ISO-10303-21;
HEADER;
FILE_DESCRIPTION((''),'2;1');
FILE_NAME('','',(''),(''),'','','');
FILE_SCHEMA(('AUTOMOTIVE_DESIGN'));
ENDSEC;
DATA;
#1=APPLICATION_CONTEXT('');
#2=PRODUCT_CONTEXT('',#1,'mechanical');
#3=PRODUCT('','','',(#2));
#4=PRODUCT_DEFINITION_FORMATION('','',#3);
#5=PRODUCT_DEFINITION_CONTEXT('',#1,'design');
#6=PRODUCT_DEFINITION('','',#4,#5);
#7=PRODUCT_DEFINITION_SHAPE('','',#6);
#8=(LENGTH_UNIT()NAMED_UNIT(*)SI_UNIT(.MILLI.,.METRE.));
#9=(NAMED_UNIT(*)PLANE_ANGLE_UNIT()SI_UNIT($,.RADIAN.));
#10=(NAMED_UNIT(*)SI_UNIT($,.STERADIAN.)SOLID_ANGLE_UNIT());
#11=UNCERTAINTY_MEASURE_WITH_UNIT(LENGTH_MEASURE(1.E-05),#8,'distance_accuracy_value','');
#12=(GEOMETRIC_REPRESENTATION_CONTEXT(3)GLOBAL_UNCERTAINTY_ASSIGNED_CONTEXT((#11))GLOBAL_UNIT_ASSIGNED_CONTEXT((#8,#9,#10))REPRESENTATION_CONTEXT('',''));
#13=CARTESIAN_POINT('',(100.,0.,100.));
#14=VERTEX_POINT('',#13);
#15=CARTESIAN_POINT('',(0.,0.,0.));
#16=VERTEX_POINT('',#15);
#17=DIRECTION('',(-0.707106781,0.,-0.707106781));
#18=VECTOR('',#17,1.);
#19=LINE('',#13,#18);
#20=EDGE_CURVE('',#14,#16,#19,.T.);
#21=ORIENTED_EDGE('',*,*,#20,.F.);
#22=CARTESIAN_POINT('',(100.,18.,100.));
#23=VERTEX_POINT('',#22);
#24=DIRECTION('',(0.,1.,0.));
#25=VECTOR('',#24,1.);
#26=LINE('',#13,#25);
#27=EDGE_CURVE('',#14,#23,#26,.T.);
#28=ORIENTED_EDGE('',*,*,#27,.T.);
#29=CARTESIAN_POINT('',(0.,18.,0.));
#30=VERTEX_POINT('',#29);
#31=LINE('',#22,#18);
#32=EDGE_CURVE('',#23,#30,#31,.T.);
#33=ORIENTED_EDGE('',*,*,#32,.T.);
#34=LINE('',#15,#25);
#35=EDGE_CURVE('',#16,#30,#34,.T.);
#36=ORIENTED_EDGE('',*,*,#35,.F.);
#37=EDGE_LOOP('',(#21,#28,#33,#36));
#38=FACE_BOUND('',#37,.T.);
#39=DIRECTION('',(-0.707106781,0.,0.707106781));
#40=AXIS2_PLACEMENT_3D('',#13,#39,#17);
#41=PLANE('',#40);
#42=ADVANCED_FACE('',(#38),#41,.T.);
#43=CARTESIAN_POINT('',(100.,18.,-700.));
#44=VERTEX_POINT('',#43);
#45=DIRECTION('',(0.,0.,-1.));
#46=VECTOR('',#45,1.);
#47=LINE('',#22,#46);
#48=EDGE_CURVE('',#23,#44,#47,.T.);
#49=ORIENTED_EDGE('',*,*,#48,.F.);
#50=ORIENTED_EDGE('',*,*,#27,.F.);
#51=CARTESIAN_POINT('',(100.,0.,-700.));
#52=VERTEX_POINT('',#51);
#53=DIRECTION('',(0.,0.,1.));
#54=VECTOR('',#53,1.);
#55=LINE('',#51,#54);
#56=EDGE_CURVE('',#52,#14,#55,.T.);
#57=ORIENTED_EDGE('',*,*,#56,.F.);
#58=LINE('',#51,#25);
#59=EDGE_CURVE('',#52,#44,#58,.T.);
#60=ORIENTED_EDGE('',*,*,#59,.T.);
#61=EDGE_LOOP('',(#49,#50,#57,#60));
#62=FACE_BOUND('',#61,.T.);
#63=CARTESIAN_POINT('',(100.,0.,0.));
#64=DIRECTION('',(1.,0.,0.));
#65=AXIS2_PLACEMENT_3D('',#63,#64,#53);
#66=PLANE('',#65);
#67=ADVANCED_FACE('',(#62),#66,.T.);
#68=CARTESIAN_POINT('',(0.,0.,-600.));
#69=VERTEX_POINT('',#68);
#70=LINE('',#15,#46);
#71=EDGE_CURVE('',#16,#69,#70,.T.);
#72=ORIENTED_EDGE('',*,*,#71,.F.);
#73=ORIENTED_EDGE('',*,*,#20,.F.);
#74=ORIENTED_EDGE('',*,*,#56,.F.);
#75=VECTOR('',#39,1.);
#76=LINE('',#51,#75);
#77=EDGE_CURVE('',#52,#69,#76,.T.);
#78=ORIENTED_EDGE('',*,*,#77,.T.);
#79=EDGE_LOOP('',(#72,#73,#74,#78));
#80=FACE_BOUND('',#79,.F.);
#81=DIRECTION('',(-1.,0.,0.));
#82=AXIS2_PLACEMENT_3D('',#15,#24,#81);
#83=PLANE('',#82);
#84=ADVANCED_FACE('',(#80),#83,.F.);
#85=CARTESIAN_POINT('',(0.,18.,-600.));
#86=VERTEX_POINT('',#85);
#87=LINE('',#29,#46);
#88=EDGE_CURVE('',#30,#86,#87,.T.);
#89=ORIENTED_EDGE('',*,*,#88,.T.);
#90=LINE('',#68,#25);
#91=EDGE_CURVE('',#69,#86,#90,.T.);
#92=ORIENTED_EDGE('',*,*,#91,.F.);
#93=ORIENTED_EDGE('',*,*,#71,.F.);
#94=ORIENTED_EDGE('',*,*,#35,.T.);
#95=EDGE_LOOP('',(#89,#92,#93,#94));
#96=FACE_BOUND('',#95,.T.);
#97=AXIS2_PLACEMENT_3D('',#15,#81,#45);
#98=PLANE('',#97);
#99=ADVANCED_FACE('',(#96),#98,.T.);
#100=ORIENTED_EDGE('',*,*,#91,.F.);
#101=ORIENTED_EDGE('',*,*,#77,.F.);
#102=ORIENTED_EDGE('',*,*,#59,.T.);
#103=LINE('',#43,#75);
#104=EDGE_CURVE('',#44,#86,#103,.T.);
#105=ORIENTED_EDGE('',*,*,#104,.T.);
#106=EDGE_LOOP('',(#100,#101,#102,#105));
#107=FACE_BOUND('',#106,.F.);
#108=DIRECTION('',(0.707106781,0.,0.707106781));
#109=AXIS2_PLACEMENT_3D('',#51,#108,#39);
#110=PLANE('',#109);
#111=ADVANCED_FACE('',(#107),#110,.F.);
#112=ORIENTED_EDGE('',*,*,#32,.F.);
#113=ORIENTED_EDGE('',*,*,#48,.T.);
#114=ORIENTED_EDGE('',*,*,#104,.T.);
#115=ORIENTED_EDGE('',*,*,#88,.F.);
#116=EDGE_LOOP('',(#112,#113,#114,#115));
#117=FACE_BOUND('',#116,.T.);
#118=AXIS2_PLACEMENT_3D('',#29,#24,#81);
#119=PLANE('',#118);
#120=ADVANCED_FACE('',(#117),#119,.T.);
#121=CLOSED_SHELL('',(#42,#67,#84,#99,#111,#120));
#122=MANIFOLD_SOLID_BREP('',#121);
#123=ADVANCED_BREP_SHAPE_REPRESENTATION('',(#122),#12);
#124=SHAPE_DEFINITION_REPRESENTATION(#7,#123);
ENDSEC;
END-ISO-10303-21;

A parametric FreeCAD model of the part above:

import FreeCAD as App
import Part
import Sketcher
Q = App.Units.Quantity


def add_polygon(sketch, points):
    """Adds a closed chain of lines whose ends are joined by coincident constraints."""
    first, n = sketch.GeometryCount, len(points)
    for a, b in zip(points, points[1:] + points[:1]):
        sketch.addGeometry(Part.LineSegment(App.Vector(*a, 0), App.Vector(*b, 0)), False)
    for i in range(n):
        sketch.addConstraint(Sketcher.Constraint("Coincident", first + i, 2, first + (i + 1) % n, 1))

doc = App.newDocument("Part")
body = doc.addObject("PartDesign::Body", "Body")

sketch1 = body.newObject("Sketcher::SketchObject", "Sketch")
sketch1.AttachmentSupport = (doc.getObject("XZ_Plane"), [""])
sketch1.MapMode = "FlatFace"
add_polygon(sketch1, [(0, -600), (0, 0), (100, 100), (100, -700)])
sketch1.addConstraint(Sketcher.Constraint("Vertical", 0))
sketch1.addConstraint(Sketcher.Constraint("Vertical", 2))
sketch1.addConstraint(Sketcher.Constraint("Coincident", 0, 2, -1, 1))
sketch1.addConstraint(Sketcher.Constraint("Perpendicular", 1, 3))
sketch1.addConstraint(Sketcher.Constraint("Equal", 1, 3))
sketch1.addConstraint(Sketcher.Constraint("DistanceY", 0, 1, 0, 2, Q("600 mm")))
sketch1.addConstraint(Sketcher.Constraint("DistanceX", -1, 1, 1, 2, Q("100 mm")))
pad1 = body.newObject("PartDesign::Pad", "Pad")
pad1.Profile = sketch1
pad1.Length = 18
pad1.Reversed = True

doc.recompute()
